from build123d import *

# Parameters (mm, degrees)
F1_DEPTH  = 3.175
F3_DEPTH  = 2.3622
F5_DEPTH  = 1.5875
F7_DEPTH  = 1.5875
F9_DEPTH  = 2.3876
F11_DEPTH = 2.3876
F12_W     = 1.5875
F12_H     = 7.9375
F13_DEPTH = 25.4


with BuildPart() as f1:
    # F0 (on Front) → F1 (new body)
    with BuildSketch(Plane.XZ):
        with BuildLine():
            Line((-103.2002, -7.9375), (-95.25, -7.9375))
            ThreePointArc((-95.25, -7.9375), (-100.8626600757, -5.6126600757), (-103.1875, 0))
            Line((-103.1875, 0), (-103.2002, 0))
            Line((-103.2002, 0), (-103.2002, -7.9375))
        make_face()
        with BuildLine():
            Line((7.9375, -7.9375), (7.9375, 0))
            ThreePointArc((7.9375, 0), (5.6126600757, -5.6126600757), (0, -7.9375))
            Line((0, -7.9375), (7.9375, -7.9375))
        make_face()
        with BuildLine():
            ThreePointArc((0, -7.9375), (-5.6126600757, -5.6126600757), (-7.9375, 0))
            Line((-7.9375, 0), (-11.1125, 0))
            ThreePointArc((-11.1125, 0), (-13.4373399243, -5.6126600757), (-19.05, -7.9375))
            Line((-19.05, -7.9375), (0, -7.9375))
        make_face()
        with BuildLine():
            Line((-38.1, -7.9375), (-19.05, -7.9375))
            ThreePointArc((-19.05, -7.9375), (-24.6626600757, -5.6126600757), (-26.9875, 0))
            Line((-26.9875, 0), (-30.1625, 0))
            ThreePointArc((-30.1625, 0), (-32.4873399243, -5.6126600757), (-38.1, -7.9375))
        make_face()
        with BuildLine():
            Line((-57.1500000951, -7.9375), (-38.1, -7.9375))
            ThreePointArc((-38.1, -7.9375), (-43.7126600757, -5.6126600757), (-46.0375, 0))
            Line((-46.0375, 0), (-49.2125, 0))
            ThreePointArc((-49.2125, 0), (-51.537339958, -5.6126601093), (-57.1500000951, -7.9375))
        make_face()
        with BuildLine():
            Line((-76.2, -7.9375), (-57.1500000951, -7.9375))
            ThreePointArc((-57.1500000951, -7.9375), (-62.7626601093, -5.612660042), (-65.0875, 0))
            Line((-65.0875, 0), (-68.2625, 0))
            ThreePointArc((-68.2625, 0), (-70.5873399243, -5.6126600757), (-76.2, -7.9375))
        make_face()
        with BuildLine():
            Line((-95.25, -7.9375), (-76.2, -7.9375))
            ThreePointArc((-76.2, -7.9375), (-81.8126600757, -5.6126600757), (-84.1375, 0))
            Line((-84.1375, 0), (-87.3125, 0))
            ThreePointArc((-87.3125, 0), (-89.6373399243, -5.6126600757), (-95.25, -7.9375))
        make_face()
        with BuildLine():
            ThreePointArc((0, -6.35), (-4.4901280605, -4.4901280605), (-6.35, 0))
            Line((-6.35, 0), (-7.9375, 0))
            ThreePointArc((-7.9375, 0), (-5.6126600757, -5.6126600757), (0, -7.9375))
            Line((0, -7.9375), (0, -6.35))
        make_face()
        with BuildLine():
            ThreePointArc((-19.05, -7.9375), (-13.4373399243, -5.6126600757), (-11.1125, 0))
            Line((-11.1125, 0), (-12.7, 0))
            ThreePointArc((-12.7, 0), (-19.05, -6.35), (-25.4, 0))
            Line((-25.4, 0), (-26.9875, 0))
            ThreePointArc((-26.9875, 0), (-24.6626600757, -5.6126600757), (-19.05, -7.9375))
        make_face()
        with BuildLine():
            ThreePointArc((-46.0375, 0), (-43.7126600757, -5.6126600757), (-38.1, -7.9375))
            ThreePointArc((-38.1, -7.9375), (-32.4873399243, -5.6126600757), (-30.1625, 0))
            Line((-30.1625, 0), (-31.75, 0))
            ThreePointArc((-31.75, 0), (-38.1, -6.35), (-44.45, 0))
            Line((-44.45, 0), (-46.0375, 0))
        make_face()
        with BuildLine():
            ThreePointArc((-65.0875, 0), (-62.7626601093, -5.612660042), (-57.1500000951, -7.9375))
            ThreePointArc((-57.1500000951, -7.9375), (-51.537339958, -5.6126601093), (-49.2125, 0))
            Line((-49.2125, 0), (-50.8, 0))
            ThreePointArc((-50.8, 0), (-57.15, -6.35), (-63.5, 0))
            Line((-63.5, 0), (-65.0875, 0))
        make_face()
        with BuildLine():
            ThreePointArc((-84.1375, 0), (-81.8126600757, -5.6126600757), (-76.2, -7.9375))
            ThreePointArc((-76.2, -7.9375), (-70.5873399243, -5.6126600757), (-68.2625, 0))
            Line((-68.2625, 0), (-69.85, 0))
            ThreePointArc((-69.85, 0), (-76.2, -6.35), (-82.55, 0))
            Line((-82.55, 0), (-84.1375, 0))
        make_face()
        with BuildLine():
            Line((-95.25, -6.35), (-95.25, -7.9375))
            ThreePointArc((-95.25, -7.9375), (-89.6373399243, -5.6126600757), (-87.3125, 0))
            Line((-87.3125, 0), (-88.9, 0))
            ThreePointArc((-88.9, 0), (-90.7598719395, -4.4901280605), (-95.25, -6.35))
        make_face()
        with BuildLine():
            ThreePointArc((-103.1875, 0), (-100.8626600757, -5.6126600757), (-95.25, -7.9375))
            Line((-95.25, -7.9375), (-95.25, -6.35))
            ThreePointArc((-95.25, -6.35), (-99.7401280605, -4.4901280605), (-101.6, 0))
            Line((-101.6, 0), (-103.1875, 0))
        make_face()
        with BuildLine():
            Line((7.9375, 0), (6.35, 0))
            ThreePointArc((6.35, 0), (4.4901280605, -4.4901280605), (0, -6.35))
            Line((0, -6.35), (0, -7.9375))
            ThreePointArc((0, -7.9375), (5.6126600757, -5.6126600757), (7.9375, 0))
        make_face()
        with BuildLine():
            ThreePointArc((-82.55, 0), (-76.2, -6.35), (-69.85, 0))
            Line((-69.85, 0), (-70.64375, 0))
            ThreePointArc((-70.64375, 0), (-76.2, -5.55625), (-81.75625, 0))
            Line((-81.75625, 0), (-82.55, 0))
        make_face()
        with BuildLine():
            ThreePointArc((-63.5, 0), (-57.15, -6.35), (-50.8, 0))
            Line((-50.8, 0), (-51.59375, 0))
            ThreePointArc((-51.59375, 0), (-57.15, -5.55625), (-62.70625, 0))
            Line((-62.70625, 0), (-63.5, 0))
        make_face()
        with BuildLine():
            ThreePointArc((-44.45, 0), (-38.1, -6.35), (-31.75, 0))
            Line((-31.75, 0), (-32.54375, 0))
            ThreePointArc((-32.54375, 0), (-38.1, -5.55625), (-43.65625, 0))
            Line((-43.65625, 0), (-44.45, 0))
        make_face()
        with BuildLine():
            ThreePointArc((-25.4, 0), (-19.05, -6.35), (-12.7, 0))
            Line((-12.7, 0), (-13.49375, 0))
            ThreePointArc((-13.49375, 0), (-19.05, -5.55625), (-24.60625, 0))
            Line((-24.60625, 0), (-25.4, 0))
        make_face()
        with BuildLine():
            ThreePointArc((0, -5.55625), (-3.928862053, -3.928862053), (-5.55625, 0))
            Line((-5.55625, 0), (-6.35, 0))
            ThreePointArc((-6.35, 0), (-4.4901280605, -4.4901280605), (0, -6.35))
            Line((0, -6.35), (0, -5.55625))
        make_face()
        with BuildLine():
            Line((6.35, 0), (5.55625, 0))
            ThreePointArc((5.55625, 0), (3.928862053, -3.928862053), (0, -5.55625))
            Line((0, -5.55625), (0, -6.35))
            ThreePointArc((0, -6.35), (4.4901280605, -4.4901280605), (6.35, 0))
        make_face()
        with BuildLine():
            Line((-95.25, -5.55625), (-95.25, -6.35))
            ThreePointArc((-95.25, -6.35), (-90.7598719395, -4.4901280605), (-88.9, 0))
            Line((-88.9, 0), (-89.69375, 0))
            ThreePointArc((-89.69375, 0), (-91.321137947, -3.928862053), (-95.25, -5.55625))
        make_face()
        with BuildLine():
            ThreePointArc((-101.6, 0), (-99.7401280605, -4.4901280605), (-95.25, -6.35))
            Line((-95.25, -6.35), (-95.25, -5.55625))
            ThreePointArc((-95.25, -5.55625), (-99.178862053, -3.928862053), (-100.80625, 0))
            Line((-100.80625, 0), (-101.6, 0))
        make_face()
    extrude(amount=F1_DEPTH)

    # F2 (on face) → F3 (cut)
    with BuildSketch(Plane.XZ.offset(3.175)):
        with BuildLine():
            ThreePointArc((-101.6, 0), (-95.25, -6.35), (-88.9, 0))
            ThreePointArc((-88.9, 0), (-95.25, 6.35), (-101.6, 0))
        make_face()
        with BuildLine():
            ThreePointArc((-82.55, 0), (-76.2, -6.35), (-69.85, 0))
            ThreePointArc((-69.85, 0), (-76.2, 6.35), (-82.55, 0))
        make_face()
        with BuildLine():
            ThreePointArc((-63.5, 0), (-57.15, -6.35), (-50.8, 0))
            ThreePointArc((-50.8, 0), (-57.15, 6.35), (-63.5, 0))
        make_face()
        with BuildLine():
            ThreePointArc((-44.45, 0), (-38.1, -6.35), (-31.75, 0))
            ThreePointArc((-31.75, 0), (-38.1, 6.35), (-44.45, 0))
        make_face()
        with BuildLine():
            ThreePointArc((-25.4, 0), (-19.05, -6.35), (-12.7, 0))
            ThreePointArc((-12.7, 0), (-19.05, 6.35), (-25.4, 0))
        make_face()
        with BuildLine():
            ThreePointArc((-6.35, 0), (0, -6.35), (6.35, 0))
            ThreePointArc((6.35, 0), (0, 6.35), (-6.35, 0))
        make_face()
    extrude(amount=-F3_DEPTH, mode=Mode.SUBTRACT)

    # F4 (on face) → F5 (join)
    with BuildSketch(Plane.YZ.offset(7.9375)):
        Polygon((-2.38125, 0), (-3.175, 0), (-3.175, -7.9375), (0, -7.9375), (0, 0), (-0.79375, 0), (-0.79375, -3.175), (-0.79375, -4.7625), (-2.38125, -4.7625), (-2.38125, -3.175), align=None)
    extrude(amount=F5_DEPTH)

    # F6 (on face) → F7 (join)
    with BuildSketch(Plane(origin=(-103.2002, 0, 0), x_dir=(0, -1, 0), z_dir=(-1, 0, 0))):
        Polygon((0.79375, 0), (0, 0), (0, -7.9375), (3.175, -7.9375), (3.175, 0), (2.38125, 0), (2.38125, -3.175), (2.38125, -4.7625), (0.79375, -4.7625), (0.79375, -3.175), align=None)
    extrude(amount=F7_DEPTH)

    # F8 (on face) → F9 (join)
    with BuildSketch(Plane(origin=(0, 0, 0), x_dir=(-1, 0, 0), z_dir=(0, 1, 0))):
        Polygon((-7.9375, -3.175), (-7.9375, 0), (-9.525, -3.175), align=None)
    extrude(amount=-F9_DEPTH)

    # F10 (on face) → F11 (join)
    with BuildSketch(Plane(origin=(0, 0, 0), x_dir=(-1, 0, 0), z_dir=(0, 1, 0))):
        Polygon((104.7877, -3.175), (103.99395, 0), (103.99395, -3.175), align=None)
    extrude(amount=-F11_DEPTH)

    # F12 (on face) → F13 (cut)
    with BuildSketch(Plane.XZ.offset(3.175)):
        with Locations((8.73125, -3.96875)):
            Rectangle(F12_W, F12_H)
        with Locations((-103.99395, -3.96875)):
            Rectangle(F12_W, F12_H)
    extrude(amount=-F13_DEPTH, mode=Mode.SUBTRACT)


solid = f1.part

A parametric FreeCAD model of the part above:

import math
import FreeCAD as App
import Part
import Sketcher
from FreeCAD import Vector
Q = App.Units.Quantity


def add_polygon(sketch, points):
    """Adds a closed chain of lines whose ends are joined by coincident constraints."""
    first, n = sketch.GeometryCount, len(points)
    for a, b in zip(points, points[1:] + points[:1]):
        sketch.addGeometry(Part.LineSegment(App.Vector(*a, 0), App.Vector(*b, 0)), False)
    for i in range(n):
        sketch.addConstraint(Sketcher.Constraint("Coincident", first + i, 2, first + (i + 1) % n, 1))

doc = App.newDocument("Part")
body = doc.addObject("PartDesign::Body", "Body")

# Sketch on XZ plane
sketch1 = body.newObject("Sketcher::SketchObject", "Sketch")
sketch1.AttachmentSupport = (doc.getObject("XZ_Plane"), [""])
sketch1.MapMode = "FlatFace"
sketch1.addGeometry([
    Part.LineSegment(Vector(-103.2, -7.9, 0), Vector(7.9, -7.9, 0)),  # 0
    Part.LineSegment(Vector(7.9, -7.9, 0), Vector(7.9, 0, 0)),  # 1
    Part.LineSegment(Vector(7.9, 0, 0), Vector(5.6, 0, 0)),  # 2
    Part.ArcOfCircle(Part.Circle(Vector(0, 0, 0), Vector(0, 0, 1), 5.6), math.radians(-90), math.radians(0)),  # 3
    Part.ArcOfCircle(Part.Circle(Vector(0, 0, 0), Vector(0, 0, 1), 5.6), math.radians(180), math.radians(270)),  # 4
    Part.LineSegment(Vector(-5.6, 0, 0), Vector(-13.5, 0, 0)),  # 5
    Part.ArcOfCircle(Part.Circle(Vector(-19.1, 0, 0), Vector(0, 0, 1), 5.6), math.radians(180), math.radians(360)),  # 6
    Part.LineSegment(Vector(-24.6, 0, 0), Vector(-32.5, 0, 0)),  # 7
    Part.ArcOfCircle(Part.Circle(Vector(-38.1, 0, 0), Vector(0, 0, 1), 5.6), math.radians(180), math.radians(360)),  # 8
    Part.LineSegment(Vector(-43.7, 0, 0), Vector(-51.6, 0, 0)),  # 9
    Part.ArcOfCircle(Part.Circle(Vector(-57.1, 0, 0), Vector(0, 0, 1), 5.6), math.radians(180), math.radians(360)),  # 10
    Part.LineSegment(Vector(-62.7, 0, 0), Vector(-70.6, 0, 0)),  # 11
    Part.ArcOfCircle(Part.Circle(Vector(-76.2, 0, 0), Vector(0, 0, 1), 5.6), math.radians(180), math.radians(360)),  # 12
    Part.LineSegment(Vector(-81.8, 0, 0), Vector(-89.7, 0, 0)),  # 13
    Part.ArcOfCircle(Part.Circle(Vector(-95.2, 0, 0), Vector(0, 0, 1), 5.6), math.radians(-90), math.radians(0)),  # 14
    Part.ArcOfCircle(Part.Circle(Vector(-95.2, 0, 0), Vector(0, 0, 1), 5.6), math.radians(180), math.radians(270)),  # 15
    Part.LineSegment(Vector(-100.8, 0, 0), Vector(-103.2, 0, 0)),  # 16
    Part.LineSegment(Vector(-103.2, 0, 0), Vector(-103.2, -7.9, 0)),  # 17
], False)
sketch1.addConstraint([
    Sketcher.Constraint("Coincident", 0, 2, 1, 1),
    Sketcher.Constraint("Coincident", 1, 2, 2, 1),
    Sketcher.Constraint("Coincident", 2, 2, 3, 2),
    Sketcher.Constraint("Tangent", 3, 1, 4, 2),
    Sketcher.Constraint("Coincident", 4, 1, 5, 1),
    Sketcher.Constraint("Coincident", 5, 2, 6, 2),
    Sketcher.Constraint("Coincident", 6, 1, 7, 1),
    Sketcher.Constraint("Coincident", 7, 2, 8, 2),
    Sketcher.Constraint("Coincident", 8, 1, 9, 1),
    Sketcher.Constraint("Coincident", 9, 2, 10, 2),
    Sketcher.Constraint("Coincident", 10, 1, 11, 1),
    Sketcher.Constraint("Coincident", 11, 2, 12, 2),
    Sketcher.Constraint("Coincident", 12, 1, 13, 1),
    Sketcher.Constraint("Coincident", 13, 2, 14, 2),
    Sketcher.Constraint("Tangent", 14, 1, 15, 2),
    Sketcher.Constraint("Coincident", 15, 1, 16, 1),
    Sketcher.Constraint("Coincident", 16, 2, 17, 1),
    Sketcher.Constraint("Coincident", 17, 2, 0, 1),
    Sketcher.Constraint("Horizontal", 0),
    Sketcher.Constraint("Vertical", 1),
    Sketcher.Constraint("Horizontal", 2),
    Sketcher.Constraint("Horizontal", 5),
    Sketcher.Constraint("Horizontal", 7),
    Sketcher.Constraint("Horizontal", 9),
    Sketcher.Constraint("Horizontal", 11),
    Sketcher.Constraint("Horizontal", 13),
    Sketcher.Constraint("Horizontal", 16),
    Sketcher.Constraint("Vertical", 17),
    Sketcher.Constraint("Coincident", 3, 3, -1, 1),
    Sketcher.Constraint("Equal", 3, 4),
    Sketcher.Constraint("Equal", 4, 6),
    Sketcher.Constraint("Equal", 6, 8),
    Sketcher.Constraint("Equal", 8, 10),
    Sketcher.Constraint("Equal", 10, 12),
    Sketcher.Constraint("Equal", 12, 14),
    Sketcher.Constraint("Equal", 14, 15),
    Sketcher.Constraint("PointOnObject", 6, 3, -1),
    Sketcher.Constraint("PointOnObject", 8, 3, -1),
    Sketcher.Constraint("PointOnObject", 10, 3, -1),
    Sketcher.Constraint("PointOnObject", 12, 3, -1),
    Sketcher.Constraint("PointOnObject", 14, 3, -1),
    Sketcher.Constraint("PointOnObject", 1, 2, -1),
    Sketcher.Constraint("PointOnObject", 3, 1, -2),
    Sketcher.Constraint("PointOnObject", 4, 1, -1),
    Sketcher.Constraint("PointOnObject", 6, 1, -1),
    Sketcher.Constraint("PointOnObject", 8, 1, -1),
    Sketcher.Constraint("PointOnObject", 10, 1, -1),
    Sketcher.Constraint("PointOnObject", 12, 1, -1),
    Sketcher.Constraint("PointOnObject", 15, 1, -1),
    Sketcher.Constraint("Vertical", 15, 3, 14, 1),
    Sketcher.Constraint("Equal", 5, 7),
    Sketcher.Constraint("Equal", 7, 9),
    Sketcher.Constraint("Equal", 9, 11),
    Sketcher.Constraint("Equal", 11, 13),
    Sketcher.Constraint("Equal", 13, 1),
    Sketcher.Constraint("DistanceX", 12, 3, -1, 1, Q("3 in")),
    Sketcher.Constraint("Radius", 3, Q("0.21875 in")),
    Sketcher.Constraint("DistanceX", 2, 2, 2, 1, Q("0.09375 in")),
    Sketcher.Constraint("DistanceX", 0, 1, 0, 2, Q("4.3755 in")),
])
pad1 = body.newObject("PartDesign::Pad", "Pad")
pad1.Profile = sketch1
pad1.Length = Q("0.125 in")

# Sketch on XZ plane
sketch2 = body.newObject("Sketcher::SketchObject", "Sketch001")
sketch2.AttachmentSupport = (doc.getObject("XZ_Plane"), [""])
sketch2.MapMode = "FlatFace"
sketch2.AttachmentOffset = App.Placement(Vector(0, 0, 0.125 * 25.4), App.Rotation())
sketch2.addGeometry([
    Part.Circle(Vector(-95, 0, 0), Vector(0, 0, 1), 6),  # 0
    Part.Circle(Vector(-76, 0, 0), Vector(0, 0, 1), 6),  # 1
    Part.Circle(Vector(-57, 0, 0), Vector(0, 0, 1), 6),  # 2
    Part.Circle(Vector(-38, 0, 0), Vector(0, 0, 1), 6),  # 3
    Part.Circle(Vector(-19, 0, 0), Vector(0, 0, 1), 6),  # 4
    Part.Circle(Vector(0, 0, 0), Vector(0, 0, 1), 6),  # 5
], False)
sketch2.addConstraint([
    Sketcher.Constraint("Coincident", 5, 3, -1, 1),
    Sketcher.Constraint("Equal", 0, 1),
    Sketcher.Constraint("Equal", 1, 2),
    Sketcher.Constraint("Equal", 2, 3),
    Sketcher.Constraint("Equal", 3, 4),
    Sketcher.Constraint("Equal", 4, 5),
    Sketcher.Constraint("PointOnObject", 0, 3, -1),
    Sketcher.Constraint("PointOnObject", 1, 3, -1),
    Sketcher.Constraint("PointOnObject", 2, 3, -1),
    Sketcher.Constraint("PointOnObject", 3, 3, -1),
    Sketcher.Constraint("PointOnObject", 4, 3, -1),
    Sketcher.Constraint("Diameter", 0, Q("0.5 in")),
    Sketcher.Constraint("DistanceX", 1, 3, -1, 1, Q("3 in")),
    Sketcher.Constraint("DistanceX", 0, 3, 4, 3, Q("3 in")),
    Sketcher.Constraint("DistanceX", 3, 3, -1, 1, Q("1.5 in")),
    Sketcher.Constraint("DistanceX", 0, 3, 2, 3, Q("1.5 in")),
    Sketcher.Constraint("DistanceX", 0, 3, -1, 1, Q("3.75 in")),
])
pocket1 = body.newObject("PartDesign::Pocket", "Pocket")
pocket1.Profile = sketch2
pocket1.Length = Q("0.093 in")

# Sketch on YZ plane
sketch3 = body.newObject("Sketcher::SketchObject", "Sketch002")
sketch3.AttachmentSupport = (doc.getObject("YZ_Plane"), [""])
sketch3.MapMode = "FlatFace"
sketch3.AttachmentOffset = App.Placement(Vector(0, 0, 0.3125 * 25.4), App.Rotation())
add_polygon(sketch3, [(-2.4, 0), (-3.2, 0), (-3.2, -7.9), (0, -7.9), (0, 0), (-0.8, 0), (-0.8, -4.8), (-2.4, -4.8)])  # lines 0-7
sketch3.addConstraint([
    Sketcher.Constraint("Horizontal", 0),
    Sketcher.Constraint("Vertical", 1),
    Sketcher.Constraint("Horizontal", 2),
    Sketcher.Constraint("Vertical", 3),
    Sketcher.Constraint("Horizontal", 4),
    Sketcher.Constraint("Vertical", 5),
    Sketcher.Constraint("Horizontal", 6),
    Sketcher.Constraint("Vertical", 7),
    Sketcher.Constraint("Coincident", 3, 2, -1, 1),
    Sketcher.Constraint("PointOnObject", 0, 2, -1),
    Sketcher.Constraint("Equal", 0, 4),
    Sketcher.Constraint("DistanceX", 0, 2, 0, 1, Q("0.03125 in")),
    Sketcher.Constraint("DistanceX", 2, 1, 2, 2, Q("0.125 in")),
    Sketcher.Constraint("DistanceY", 1, 2, 1, 1, Q("0.3125 in")),
    Sketcher.Constraint("DistanceY", 5, 2, 5, 1, Q("0.1875 in")),
])
pad2 = body.newObject("PartDesign::Pad", "Pad001")
pad2.Profile = sketch3
pad2.Length = Q("0.0625 in")

# Sketch on YZ plane
sketch4 = body.newObject("Sketcher::SketchObject", "Sketch003")
sketch4.AttachmentSupport = (doc.getObject("YZ_Plane"), [""])
sketch4.MapMode = "FlatFace"
sketch4.AttachmentOffset = App.Placement(Vector(0, 0, -4.063 * 25.4), App.Rotation())
add_polygon(sketch4, [(-0.8, 0), (0, 0), (0, -7.9), (-3.2, -7.9), (-3.2, 0), (-2.4, 0), (-2.4, -4.8), (-0.8, -4.8)])  # lines 0-7
sketch4.addConstraint([
    Sketcher.Constraint("Horizontal", 0),
    Sketcher.Constraint("Vertical", 1),
    Sketcher.Constraint("Horizontal", 2),
    Sketcher.Constraint("Vertical", 3),
    Sketcher.Constraint("Horizontal", 4),
    Sketcher.Constraint("Vertical", 5),
    Sketcher.Constraint("Horizontal", 6),
    Sketcher.Constraint("Vertical", 7),
    Sketcher.Constraint("Coincident", 0, 2, -1, 1),
    Sketcher.Constraint("PointOnObject", 3, 2, -1),
    Sketcher.Constraint("Equal", 0, 4),
    Sketcher.Constraint("DistanceX", 0, 1, 0, 2, Q("0.03125 in")),
    Sketcher.Constraint("DistanceX", 2, 2, 2, 1, Q("0.125 in")),
    Sketcher.Constraint("DistanceY", 1, 2, 1, 1, Q("0.3125 in")),
    Sketcher.Constraint("DistanceY", 5, 2, 5, 1, Q("0.1875 in")),
])
pad3 = body.newObject("PartDesign::Pad", "Pad002")
pad3.Profile = sketch4
pad3.Length = Q("0.0625 in")
pad3.Reversed = True

# Sketch on XZ plane
sketch5 = body.newObject("Sketcher::SketchObject", "Sketch004")
sketch5.AttachmentSupport = (doc.getObject("XZ_Plane"), [""])
sketch5.MapMode = "FlatFace"
add_polygon(sketch5, [(7.9, -3.2), (7.9, 0), (9.5, -3.2)])  # lines 0-2
sketch5.addConstraint([
    Sketcher.Constraint("Vertical", 0),
    Sketcher.Constraint("Horizontal", 2),
    Sketcher.Constraint("PointOnObject", 0, 2, -1),
    Sketcher.Constraint("DistanceX", 2, 2, 2, 1, Q("0.0625 in")),
    Sketcher.Constraint("DistanceY", 0, 1, 0, 2, Q("0.125 in")),
    Sketcher.Constraint("DistanceX", -1, 1, 0, 2, Q("0.3125 in")),
])
pad4 = body.newObject("PartDesign::Pad", "Pad003")
pad4.Profile = sketch5
pad4.Length = Q("0.094 in")

# Sketch on XZ plane
sketch6 = body.newObject("Sketcher::SketchObject", "Sketch005")
sketch6.AttachmentSupport = (doc.getObject("XZ_Plane"), [""])
sketch6.MapMode = "FlatFace"
add_polygon(sketch6, [(-104.8, -3.2), (-104, 0), (-104, -3.2)])  # lines 0-2
sketch6.addConstraint([
    Sketcher.Constraint("Vertical", 1),
    Sketcher.Constraint("Horizontal", 2),
    Sketcher.Constraint("PointOnObject", 0, 2, -1),
    Sketcher.Constraint("DistanceX", 2, 2, 2, 1, Q("0.03125 in")),
    Sketcher.Constraint("DistanceY", 1, 2, 1, 1, Q("0.125 in")),
    Sketcher.Constraint("DistanceX", 2, 2, -1, 1, Q("4.1255 in")),
])
pad5 = body.newObject("PartDesign::Pad", "Pad004")
pad5.Profile = sketch6
pad5.Length = Q("0.094 in")

# Sketch on XZ plane
sketch7 = body.newObject("Sketcher::SketchObject", "Sketch006")
sketch7.AttachmentSupport = (doc.getObject("XZ_Plane"), [""])
sketch7.MapMode = "FlatFace"
sketch7.AttachmentOffset = App.Placement(Vector(0, 0, 0.125 * 25.4), App.Rotation())
add_polygon(sketch7, [(7.9, 0), (7.9, -7.9), (9.5, -7.9), (9.5, 0)])  # lines 0-3
add_polygon(sketch7, [(-104.8, 0), (-104.8, -7.9), (-103.2, -7.9), (-103.2, 0)])  # lines 4-7
sketch7.addConstraint([
    Sketcher.Constraint("Vertical", 0),
    Sketcher.Constraint("Horizontal", 1),
    Sketcher.Constraint("Vertical", 2),
    Sketcher.Constraint("Horizontal", 3),
    Sketcher.Constraint("Vertical", 4),
    Sketcher.Constraint("Horizontal", 5),
    Sketcher.Constraint("Vertical", 6),
    Sketcher.Constraint("Horizontal", 7),
    Sketcher.Constraint("PointOnObject", 2, 2, -1),
    Sketcher.Constraint("PointOnObject", 6, 2, -1),
    Sketcher.Constraint("Horizontal", 1, 2, 4, 2),
    Sketcher.Constraint("Equal", 3, 5),
    Sketcher.Constraint("DistanceX", 1, 1, 1, 2, Q("0.0625 in")),
    Sketcher.Constraint("DistanceY", 0, 2, 0, 1, Q("0.3125 in")),
    Sketcher.Constraint("DistanceX", -1, 1, 0, 2, Q("0.3125 in")),
    Sketcher.Constraint("DistanceX", 5, 2, -1, 1, Q("4.063 in")),
])
pocket2 = body.newObject("PartDesign::Pocket", "Pocket001")
pocket2.Profile = sketch7
pocket2.Length = Q("1 in")

doc.recompute()
